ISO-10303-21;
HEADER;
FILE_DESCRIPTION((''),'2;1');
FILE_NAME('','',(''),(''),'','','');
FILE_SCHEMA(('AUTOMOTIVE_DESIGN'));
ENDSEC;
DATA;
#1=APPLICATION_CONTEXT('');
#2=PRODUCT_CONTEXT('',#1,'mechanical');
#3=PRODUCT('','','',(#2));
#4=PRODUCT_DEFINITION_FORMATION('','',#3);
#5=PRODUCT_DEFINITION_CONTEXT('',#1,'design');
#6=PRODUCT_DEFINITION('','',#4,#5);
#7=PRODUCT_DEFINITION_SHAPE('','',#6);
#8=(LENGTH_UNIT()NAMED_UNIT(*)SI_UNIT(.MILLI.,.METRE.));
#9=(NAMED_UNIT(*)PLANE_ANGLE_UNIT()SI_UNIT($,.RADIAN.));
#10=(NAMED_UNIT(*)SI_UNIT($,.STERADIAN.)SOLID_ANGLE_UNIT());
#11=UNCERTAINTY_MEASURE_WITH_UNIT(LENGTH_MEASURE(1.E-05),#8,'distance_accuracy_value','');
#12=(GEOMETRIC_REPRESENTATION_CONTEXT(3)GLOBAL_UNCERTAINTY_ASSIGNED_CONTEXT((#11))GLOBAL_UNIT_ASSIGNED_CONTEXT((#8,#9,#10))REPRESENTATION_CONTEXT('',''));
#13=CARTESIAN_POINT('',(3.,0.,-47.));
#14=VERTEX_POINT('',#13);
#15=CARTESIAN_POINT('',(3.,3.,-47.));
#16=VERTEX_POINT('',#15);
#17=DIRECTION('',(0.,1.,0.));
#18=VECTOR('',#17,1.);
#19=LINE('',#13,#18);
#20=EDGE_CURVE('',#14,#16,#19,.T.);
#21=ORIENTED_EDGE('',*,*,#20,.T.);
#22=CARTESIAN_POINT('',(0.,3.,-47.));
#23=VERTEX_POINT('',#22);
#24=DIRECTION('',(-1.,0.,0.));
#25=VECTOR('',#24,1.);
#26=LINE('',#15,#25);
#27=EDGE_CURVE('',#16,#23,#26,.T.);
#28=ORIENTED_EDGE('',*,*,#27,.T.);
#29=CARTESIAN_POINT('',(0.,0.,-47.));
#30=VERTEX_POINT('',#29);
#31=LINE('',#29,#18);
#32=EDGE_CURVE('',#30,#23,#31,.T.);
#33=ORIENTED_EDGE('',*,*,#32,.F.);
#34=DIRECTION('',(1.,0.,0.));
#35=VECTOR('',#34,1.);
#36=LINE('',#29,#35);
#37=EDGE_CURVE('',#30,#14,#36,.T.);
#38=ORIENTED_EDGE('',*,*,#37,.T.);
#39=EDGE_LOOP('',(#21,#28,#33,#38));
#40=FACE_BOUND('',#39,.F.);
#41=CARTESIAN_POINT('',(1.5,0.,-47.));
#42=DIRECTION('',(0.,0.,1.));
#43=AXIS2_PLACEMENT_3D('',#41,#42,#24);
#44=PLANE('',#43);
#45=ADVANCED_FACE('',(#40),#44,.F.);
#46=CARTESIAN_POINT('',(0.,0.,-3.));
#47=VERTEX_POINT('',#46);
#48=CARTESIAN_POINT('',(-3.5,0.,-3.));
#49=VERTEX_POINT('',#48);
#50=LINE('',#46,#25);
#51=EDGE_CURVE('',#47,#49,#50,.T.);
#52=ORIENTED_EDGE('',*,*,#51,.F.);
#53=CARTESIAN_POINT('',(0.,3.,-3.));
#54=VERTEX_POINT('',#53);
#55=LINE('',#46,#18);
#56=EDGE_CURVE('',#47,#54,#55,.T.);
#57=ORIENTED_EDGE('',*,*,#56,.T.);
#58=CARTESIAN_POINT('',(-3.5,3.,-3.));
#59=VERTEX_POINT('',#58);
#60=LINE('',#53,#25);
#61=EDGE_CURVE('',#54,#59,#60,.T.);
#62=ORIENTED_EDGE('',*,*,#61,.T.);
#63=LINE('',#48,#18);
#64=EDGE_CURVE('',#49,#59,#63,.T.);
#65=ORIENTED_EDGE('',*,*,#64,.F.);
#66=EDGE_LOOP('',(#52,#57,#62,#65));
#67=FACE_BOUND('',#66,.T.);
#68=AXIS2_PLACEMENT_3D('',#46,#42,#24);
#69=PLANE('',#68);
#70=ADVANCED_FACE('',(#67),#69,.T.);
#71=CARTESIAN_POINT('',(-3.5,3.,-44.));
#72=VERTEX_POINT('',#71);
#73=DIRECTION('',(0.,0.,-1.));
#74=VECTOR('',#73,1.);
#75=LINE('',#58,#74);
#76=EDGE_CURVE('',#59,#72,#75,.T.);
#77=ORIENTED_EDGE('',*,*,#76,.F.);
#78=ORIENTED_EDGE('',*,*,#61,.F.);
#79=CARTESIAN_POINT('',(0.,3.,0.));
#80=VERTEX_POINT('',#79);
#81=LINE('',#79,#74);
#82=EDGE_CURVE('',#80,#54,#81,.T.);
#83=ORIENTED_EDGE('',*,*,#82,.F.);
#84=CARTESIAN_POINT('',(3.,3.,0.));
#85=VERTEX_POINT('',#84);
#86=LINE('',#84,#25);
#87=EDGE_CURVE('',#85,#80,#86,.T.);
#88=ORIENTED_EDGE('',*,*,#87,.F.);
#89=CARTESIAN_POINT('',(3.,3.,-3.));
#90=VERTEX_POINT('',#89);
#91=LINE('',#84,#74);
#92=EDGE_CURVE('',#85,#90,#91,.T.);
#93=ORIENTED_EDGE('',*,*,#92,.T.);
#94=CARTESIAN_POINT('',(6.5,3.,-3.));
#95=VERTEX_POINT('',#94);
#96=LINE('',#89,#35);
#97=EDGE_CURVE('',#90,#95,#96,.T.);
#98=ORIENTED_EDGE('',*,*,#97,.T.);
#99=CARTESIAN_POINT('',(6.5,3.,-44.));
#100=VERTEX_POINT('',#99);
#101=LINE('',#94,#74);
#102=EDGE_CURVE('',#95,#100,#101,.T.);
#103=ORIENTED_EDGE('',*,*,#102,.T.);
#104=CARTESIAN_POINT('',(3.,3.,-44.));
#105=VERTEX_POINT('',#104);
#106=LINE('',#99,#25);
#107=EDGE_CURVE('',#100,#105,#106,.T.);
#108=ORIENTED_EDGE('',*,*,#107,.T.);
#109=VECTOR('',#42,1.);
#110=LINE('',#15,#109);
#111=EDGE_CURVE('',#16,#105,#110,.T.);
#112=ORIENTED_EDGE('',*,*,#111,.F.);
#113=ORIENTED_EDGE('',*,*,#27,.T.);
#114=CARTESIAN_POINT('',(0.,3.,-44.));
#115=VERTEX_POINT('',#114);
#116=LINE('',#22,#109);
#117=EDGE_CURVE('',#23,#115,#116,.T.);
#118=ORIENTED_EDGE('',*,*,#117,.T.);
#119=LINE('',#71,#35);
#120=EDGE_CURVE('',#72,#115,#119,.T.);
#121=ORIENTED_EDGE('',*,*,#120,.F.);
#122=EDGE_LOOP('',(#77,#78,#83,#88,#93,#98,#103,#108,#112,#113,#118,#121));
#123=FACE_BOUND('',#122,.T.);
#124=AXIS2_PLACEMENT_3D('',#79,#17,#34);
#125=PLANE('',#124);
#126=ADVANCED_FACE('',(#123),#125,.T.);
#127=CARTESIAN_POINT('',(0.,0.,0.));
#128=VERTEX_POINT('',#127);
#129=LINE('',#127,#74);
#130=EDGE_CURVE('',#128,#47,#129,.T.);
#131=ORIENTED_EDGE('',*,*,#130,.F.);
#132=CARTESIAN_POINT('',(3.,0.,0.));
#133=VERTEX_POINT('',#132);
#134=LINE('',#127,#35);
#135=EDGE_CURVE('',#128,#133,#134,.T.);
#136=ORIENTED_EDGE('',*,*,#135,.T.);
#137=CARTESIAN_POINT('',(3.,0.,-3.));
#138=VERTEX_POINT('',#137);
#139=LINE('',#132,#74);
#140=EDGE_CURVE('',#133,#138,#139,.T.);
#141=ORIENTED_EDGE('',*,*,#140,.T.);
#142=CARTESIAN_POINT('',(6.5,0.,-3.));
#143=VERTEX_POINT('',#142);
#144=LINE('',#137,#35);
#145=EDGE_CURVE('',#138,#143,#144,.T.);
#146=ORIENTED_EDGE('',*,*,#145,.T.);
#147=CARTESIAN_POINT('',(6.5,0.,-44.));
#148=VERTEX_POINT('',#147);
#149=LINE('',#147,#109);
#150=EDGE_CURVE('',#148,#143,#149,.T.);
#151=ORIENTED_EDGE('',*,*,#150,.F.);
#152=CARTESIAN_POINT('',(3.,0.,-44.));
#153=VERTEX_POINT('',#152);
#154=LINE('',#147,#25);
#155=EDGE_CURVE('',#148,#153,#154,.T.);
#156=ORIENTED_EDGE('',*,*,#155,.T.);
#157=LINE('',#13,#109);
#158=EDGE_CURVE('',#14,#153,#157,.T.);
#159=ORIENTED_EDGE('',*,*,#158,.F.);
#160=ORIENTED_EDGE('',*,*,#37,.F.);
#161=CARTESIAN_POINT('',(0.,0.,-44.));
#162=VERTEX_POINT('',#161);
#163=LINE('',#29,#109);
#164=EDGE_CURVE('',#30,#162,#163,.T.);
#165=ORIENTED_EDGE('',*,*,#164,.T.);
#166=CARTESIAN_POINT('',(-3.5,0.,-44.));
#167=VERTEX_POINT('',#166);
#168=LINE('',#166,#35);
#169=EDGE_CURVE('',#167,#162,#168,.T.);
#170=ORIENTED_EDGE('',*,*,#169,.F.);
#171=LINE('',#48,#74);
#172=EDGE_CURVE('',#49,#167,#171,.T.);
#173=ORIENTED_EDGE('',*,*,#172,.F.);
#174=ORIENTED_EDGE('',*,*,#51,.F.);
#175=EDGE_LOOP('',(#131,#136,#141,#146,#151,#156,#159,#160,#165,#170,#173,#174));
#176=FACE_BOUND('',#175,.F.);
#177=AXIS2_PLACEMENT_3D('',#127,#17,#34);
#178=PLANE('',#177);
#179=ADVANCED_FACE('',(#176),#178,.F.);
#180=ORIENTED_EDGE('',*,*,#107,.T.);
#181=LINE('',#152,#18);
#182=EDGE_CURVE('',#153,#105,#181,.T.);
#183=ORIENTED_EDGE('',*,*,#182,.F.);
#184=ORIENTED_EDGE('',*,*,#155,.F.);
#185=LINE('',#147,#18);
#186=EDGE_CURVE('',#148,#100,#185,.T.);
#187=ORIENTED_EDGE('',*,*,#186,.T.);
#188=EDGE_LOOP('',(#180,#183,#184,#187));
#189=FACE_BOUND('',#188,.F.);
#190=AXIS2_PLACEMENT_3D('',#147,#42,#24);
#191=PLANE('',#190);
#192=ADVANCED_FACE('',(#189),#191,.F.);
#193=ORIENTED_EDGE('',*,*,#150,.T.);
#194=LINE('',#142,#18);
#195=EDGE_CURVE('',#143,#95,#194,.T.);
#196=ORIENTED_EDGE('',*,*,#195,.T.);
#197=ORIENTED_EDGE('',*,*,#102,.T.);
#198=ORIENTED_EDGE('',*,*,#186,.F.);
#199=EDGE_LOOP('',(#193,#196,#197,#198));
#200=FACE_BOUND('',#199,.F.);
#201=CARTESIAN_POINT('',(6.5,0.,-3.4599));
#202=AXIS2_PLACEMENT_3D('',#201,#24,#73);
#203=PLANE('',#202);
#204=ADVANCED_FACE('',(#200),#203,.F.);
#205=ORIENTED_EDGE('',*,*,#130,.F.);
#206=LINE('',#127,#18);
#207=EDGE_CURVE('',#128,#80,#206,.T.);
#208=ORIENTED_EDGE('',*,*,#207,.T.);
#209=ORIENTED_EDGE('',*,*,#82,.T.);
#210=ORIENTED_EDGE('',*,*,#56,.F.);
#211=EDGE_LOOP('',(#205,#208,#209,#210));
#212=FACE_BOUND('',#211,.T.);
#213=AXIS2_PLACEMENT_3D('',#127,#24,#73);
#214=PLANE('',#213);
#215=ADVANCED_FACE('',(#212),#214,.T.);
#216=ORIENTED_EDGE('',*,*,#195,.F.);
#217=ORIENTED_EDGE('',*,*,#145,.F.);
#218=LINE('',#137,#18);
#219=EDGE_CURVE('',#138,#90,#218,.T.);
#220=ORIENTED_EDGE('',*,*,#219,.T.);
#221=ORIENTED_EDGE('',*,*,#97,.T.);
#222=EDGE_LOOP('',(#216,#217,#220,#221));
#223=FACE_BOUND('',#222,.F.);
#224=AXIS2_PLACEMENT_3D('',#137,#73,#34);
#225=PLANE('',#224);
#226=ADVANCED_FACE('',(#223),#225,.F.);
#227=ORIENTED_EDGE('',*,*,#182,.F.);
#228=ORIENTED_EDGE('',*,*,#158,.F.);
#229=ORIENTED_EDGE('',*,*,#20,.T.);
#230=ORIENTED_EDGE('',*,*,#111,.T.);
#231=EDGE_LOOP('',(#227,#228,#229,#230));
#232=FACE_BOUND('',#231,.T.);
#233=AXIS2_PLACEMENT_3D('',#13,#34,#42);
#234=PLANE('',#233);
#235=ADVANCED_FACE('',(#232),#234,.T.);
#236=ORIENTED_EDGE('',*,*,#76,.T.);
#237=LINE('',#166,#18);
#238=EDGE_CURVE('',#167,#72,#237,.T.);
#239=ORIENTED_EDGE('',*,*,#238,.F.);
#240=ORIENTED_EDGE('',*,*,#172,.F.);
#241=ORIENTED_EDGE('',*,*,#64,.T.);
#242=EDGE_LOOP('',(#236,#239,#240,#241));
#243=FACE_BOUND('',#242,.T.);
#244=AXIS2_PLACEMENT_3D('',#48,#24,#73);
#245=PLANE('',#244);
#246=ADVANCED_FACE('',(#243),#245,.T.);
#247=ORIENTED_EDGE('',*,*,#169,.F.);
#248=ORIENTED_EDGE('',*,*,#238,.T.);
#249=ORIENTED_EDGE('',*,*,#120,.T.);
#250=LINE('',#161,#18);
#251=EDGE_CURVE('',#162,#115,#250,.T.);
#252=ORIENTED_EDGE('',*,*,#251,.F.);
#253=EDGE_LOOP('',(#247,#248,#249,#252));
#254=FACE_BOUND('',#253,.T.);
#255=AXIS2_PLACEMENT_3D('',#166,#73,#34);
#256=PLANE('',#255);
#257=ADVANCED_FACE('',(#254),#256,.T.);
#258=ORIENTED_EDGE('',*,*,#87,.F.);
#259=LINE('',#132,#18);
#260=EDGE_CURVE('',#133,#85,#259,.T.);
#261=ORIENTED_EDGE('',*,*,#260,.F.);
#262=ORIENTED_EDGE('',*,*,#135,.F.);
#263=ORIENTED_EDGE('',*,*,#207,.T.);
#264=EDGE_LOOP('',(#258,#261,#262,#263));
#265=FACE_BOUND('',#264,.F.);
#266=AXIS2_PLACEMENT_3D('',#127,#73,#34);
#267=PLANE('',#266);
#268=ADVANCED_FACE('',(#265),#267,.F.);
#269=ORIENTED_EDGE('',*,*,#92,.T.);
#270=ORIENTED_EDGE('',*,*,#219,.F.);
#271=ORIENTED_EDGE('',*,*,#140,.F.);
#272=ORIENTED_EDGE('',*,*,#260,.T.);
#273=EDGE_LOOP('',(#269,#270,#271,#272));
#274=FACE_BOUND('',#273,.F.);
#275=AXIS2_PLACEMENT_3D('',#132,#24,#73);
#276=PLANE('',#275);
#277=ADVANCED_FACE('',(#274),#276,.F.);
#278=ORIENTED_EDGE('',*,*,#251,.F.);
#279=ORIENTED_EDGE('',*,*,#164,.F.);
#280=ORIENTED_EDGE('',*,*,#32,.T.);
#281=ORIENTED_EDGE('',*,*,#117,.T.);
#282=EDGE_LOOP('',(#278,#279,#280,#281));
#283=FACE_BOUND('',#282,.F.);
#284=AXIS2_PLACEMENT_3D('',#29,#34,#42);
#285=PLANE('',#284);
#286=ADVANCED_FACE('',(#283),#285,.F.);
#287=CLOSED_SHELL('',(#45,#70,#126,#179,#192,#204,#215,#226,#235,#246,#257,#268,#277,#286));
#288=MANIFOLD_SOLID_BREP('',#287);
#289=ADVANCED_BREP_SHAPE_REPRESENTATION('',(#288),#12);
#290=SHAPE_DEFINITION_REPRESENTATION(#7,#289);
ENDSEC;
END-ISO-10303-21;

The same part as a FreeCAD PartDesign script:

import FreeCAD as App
import Part
import Sketcher

doc = App.newDocument("Part")
body = doc.addObject("PartDesign::Body", "Body")

# Sketch on XZ plane
sketch1 = body.newObject("Sketcher::SketchObject", "Sketch")
sketch1.AttachmentSupport = (doc.getObject("XZ_Plane"), [""])
sketch1.MapMode = "FlatFace"
sketch1.addGeometry(Part.LineSegment(App.Vector(0, -3, 0), App.Vector(0, 0, 0)), False)
sketch1.addGeometry(Part.LineSegment(App.Vector(0, 0, 0), App.Vector(3, 0, 0)), False)
sketch1.addGeometry(Part.LineSegment(App.Vector(3, 0, 0), App.Vector(3, -3, 0)), False)
sketch1.addGeometry(Part.LineSegment(App.Vector(3, -3, 0), App.Vector(6.5, -3, 0)), False)
sketch1.addGeometry(Part.LineSegment(App.Vector(6.5, -3, 0), App.Vector(6.5, -44, 0)), False)
sketch1.addGeometry(Part.LineSegment(App.Vector(6.5, -44, 0), App.Vector(3, -44, 0)), False)
sketch1.addGeometry(Part.LineSegment(App.Vector(3, -44, 0), App.Vector(3, -47, 0)), False)
sketch1.addGeometry(Part.LineSegment(App.Vector(3, -47, 0), App.Vector(0, -47, 0)), False)
sketch1.addGeometry(Part.LineSegment(App.Vector(0, -47, 0), App.Vector(0, -44, 0)), False)
sketch1.addGeometry(Part.LineSegment(App.Vector(0, -44, 0), App.Vector(-3.5, -44, 0)), False)
sketch1.addGeometry(Part.LineSegment(App.Vector(-3.5, -44, 0), App.Vector(-3.5, -3, 0)), False)
sketch1.addGeometry(Part.LineSegment(App.Vector(-3.5, -3, 0), App.Vector(0, -3, 0)), False)
sketch1.addConstraint(Sketcher.Constraint("Coincident", 0, 2, 1, 1))
sketch1.addConstraint(Sketcher.Constraint("Coincident", 1, 2, 2, 1))
sketch1.addConstraint(Sketcher.Constraint("Coincident", 2, 2, 3, 1))
sketch1.addConstraint(Sketcher.Constraint("Coincident", 3, 2, 4, 1))
sketch1.addConstraint(Sketcher.Constraint("Coincident", 4, 2, 5, 1))
sketch1.addConstraint(Sketcher.Constraint("Coincident", 5, 2, 6, 1))
sketch1.addConstraint(Sketcher.Constraint("Coincident", 6, 2, 7, 1))
sketch1.addConstraint(Sketcher.Constraint("Coincident", 7, 2, 8, 1))
sketch1.addConstraint(Sketcher.Constraint("Coincident", 8, 2, 9, 1))
sketch1.addConstraint(Sketcher.Constraint("Coincident", 9, 2, 10, 1))
sketch1.addConstraint(Sketcher.Constraint("Coincident", 10, 2, 11, 1))
sketch1.addConstraint(Sketcher.Constraint("Coincident", 11, 2, 0, 1))
sketch1.addConstraint(Sketcher.Constraint("Vertical", 0))
sketch1.addConstraint(Sketcher.Constraint("Horizontal", 1))
sketch1.addConstraint(Sketcher.Constraint("Vertical", 2))
sketch1.addConstraint(Sketcher.Constraint("Horizontal", 3))
sketch1.addConstraint(Sketcher.Constraint("Vertical", 4))
sketch1.addConstraint(Sketcher.Constraint("Horizontal", 5))
sketch1.addConstraint(Sketcher.Constraint("Vertical", 6))
sketch1.addConstraint(Sketcher.Constraint("Horizontal", 7))
sketch1.addConstraint(Sketcher.Constraint("Vertical", 8))
sketch1.addConstraint(Sketcher.Constraint("Horizontal", 9))
sketch1.addConstraint(Sketcher.Constraint("Vertical", 10))
sketch1.addConstraint(Sketcher.Constraint("Horizontal", 11))
sketch1.addConstraint(Sketcher.Constraint("Coincident", 0, 2, -1, 1))
sketch1.addConstraint(Sketcher.Constraint("PointOnObject", 7, 2, -2))
sketch1.addConstraint(Sketcher.Constraint("Horizontal", 5, 2, 8, 2))
sketch1.addConstraint(Sketcher.Constraint("Horizontal", 3, 2, 10, 2))
sketch1.addConstraint(Sketcher.Constraint("Vertical", 2, 2, 5, 2))
sketch1.addConstraint(Sketcher.Constraint("Equal", 5, 9))
sketch1.addConstraint(Sketcher.Constraint("Equal", 7, 0))
sketch1.addConstraint(Sketcher.Constraint("Equal", 2, 6))
sketch1.addConstraint(Sketcher.Constraint("DistanceX", 1, 1, 1, 2, 3.0))
sketch1.addConstraint(Sketcher.Constraint("DistanceX", 3, 1, 3, 2, 3.5))
sketch1.addConstraint(Sketcher.Constraint("DistanceY", 6, 2, -1, 1, 47.0))
pad1 = body.newObject("PartDesign::Pad", "Pad")
pad1.Profile = sketch1
pad1.Length = 3
pad1.Reversed = True

doc.recompute()
